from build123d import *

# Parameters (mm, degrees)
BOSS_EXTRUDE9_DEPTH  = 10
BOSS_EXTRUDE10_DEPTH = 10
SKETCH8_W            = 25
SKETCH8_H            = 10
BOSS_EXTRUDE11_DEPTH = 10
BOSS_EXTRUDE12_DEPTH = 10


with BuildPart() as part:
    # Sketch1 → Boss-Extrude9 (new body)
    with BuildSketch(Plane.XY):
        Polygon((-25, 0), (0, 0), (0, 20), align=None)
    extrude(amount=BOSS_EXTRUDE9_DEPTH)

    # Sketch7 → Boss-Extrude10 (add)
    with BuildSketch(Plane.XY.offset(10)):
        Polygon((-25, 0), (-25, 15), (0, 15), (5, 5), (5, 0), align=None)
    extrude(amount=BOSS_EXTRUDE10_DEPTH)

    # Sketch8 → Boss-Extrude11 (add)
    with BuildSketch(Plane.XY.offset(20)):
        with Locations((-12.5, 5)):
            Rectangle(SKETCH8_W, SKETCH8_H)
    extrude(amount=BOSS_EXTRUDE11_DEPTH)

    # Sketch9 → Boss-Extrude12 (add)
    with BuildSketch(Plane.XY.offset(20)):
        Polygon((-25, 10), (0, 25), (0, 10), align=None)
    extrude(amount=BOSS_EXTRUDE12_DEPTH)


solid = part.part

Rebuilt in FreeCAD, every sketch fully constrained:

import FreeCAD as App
import Part
import Sketcher
from FreeCAD import Vector
Q = App.Units.Quantity

doc = App.newDocument("Part")
body = doc.addObject("PartDesign::Body", "Body")

sketch1 = body.newObject("Sketcher::SketchObject", "Sketch")
sketch1.AttachmentSupport = (doc.getObject("XY_Plane"), [""])
sketch1.MapMode = "FlatFace"
sketch1.addGeometry([
    Part.LineSegment(Vector(-25, 0, 0), Vector(0, 0, 0)),
    Part.LineSegment(Vector(0, 0, 0), Vector(0, 20, 0)),
    Part.LineSegment(Vector(0, 20, 0), Vector(-25, 0, 0)),
], False)
sketch1.addConstraint([
    Sketcher.Constraint("Coincident", 0, 2, 1, 1),
    Sketcher.Constraint("Coincident", 1, 2, 2, 1),
    Sketcher.Constraint("Coincident", 2, 2, 0, 1),
    Sketcher.Constraint("Horizontal", 0),
    Sketcher.Constraint("Vertical", 1),
    Sketcher.Constraint("Coincident", 0, 2, -1, 1),
    Sketcher.Constraint("DistanceX", 0, 1, 0, 2, Q("25 mm")),
    Sketcher.Constraint("DistanceY", 1, 1, 1, 2, Q("20 mm")),
])
pad1 = body.newObject("PartDesign::Pad", "Pad")
pad1.Profile = sketch1
pad1.Length = 10

sketch2 = body.newObject("Sketcher::SketchObject", "Sketch001")
sketch2.AttachmentSupport = (doc.getObject("XY_Plane"), [""])
sketch2.MapMode = "FlatFace"
sketch2.AttachmentOffset = App.Placement(Vector(0, 0, 10), App.Rotation())
sketch2.addGeometry([
    Part.LineSegment(Vector(-25, 15, 0), Vector(-25, 0, 0)),
    Part.LineSegment(Vector(-25, 0, 0), Vector(5, 0, 0)),
    Part.LineSegment(Vector(5, 0, 0), Vector(5, 5, 0)),
    Part.LineSegment(Vector(5, 5, 0), Vector(0, 15, 0)),
    Part.LineSegment(Vector(0, 15, 0), Vector(-25, 15, 0)),
], False)
sketch2.addConstraint([
    Sketcher.Constraint("Coincident", 0, 2, 1, 1),
    Sketcher.Constraint("Coincident", 1, 2, 2, 1),
    Sketcher.Constraint("Coincident", 2, 2, 3, 1),
    Sketcher.Constraint("Coincident", 3, 2, 4, 1),
    Sketcher.Constraint("Coincident", 4, 2, 0, 1),
    Sketcher.Constraint("Vertical", 0),
    Sketcher.Constraint("Horizontal", 1),
    Sketcher.Constraint("Vertical", 2),
    Sketcher.Constraint("Horizontal", 4),
    Sketcher.Constraint("PointOnObject", 0, 2, -1),
    Sketcher.Constraint("PointOnObject", 3, 2, -2),
    Sketcher.Constraint("DistanceX", 1, 1, 1, 2, Q("30 mm")),
    Sketcher.Constraint("DistanceX", 4, 2, 4, 1, Q("25 mm")),
    Sketcher.Constraint("DistanceY", 0, 2, 0, 1, Q("15 mm")),
    Sketcher.Constraint("DistanceY", 2, 1, 2, 2, Q("5 mm")),
])
pad2 = body.newObject("PartDesign::Pad", "Pad001")
pad2.Profile = sketch2
pad2.Length = 10

sketch3 = body.newObject("Sketcher::SketchObject", "Sketch002")
sketch3.AttachmentSupport = (doc.getObject("XY_Plane"), [""])
sketch3.MapMode = "FlatFace"
sketch3.AttachmentOffset = App.Placement(Vector(0, 0, 20), App.Rotation())
sketch3.addGeometry([
    Part.LineSegment(Vector(-25, 10, 0), Vector(-25, 0, 0)),
    Part.LineSegment(Vector(-25, 0, 0), Vector(0, 0, 0)),
    Part.LineSegment(Vector(0, 0, 0), Vector(0, 10, 0)),
    Part.LineSegment(Vector(0, 10, 0), Vector(-25, 10, 0)),
], False)
sketch3.addConstraint([
    Sketcher.Constraint("Coincident", 0, 2, 1, 1),
    Sketcher.Constraint("Coincident", 1, 2, 2, 1),
    Sketcher.Constraint("Coincident", 2, 2, 3, 1),
    Sketcher.Constraint("Coincident", 3, 2, 0, 1),
    Sketcher.Constraint("Vertical", 0),
    Sketcher.Constraint("Horizontal", 1),
    Sketcher.Constraint("Vertical", 2),
    Sketcher.Constraint("Horizontal", 3),
    Sketcher.Constraint("Coincident", 1, 2, -1, 1),
    Sketcher.Constraint("DistanceX", 1, 1, 1, 2, Q("25 mm")),
    Sketcher.Constraint("DistanceY", 0, 2, 0, 1, Q("10 mm")),
])
pad3 = body.newObject("PartDesign::Pad", "Pad002")
pad3.Profile = sketch3
pad3.Length = 10

sketch4 = body.newObject("Sketcher::SketchObject", "Sketch003")
sketch4.AttachmentSupport = (doc.getObject("XY_Plane"), [""])
sketch4.MapMode = "FlatFace"
sketch4.AttachmentOffset = App.Placement(Vector(0, 0, 20), App.Rotation())
sketch4.addGeometry([
    Part.LineSegment(Vector(0, 25, 0), Vector(-25, 10, 0)),
    Part.LineSegment(Vector(-25, 10, 0), Vector(0, 10, 0)),
    Part.LineSegment(Vector(0, 10, 0), Vector(0, 25, 0)),
], False)
sketch4.addConstraint([
    Sketcher.Constraint("Coincident", 0, 2, 1, 1),
    Sketcher.Constraint("Coincident", 1, 2, 2, 1),
    Sketcher.Constraint("Coincident", 2, 2, 0, 1),
    Sketcher.Constraint("Horizontal", 1),
    Sketcher.Constraint("Vertical", 2),
    Sketcher.Constraint("PointOnObject", 1, 2, -2),
    Sketcher.Constraint("DistanceX", 1, 1, 1, 2, Q("25 mm")),
    Sketcher.Constraint("DistanceY", 2, 1, 2, 2, Q("15 mm")),
    Sketcher.Constraint("DistanceY", -1, 1, 0, 2, Q("10 mm")),
])
pad4 = body.newObject("PartDesign::Pad", "Pad003")
pad4.Profile = sketch4
pad4.Length = 10

doc.recompute()
